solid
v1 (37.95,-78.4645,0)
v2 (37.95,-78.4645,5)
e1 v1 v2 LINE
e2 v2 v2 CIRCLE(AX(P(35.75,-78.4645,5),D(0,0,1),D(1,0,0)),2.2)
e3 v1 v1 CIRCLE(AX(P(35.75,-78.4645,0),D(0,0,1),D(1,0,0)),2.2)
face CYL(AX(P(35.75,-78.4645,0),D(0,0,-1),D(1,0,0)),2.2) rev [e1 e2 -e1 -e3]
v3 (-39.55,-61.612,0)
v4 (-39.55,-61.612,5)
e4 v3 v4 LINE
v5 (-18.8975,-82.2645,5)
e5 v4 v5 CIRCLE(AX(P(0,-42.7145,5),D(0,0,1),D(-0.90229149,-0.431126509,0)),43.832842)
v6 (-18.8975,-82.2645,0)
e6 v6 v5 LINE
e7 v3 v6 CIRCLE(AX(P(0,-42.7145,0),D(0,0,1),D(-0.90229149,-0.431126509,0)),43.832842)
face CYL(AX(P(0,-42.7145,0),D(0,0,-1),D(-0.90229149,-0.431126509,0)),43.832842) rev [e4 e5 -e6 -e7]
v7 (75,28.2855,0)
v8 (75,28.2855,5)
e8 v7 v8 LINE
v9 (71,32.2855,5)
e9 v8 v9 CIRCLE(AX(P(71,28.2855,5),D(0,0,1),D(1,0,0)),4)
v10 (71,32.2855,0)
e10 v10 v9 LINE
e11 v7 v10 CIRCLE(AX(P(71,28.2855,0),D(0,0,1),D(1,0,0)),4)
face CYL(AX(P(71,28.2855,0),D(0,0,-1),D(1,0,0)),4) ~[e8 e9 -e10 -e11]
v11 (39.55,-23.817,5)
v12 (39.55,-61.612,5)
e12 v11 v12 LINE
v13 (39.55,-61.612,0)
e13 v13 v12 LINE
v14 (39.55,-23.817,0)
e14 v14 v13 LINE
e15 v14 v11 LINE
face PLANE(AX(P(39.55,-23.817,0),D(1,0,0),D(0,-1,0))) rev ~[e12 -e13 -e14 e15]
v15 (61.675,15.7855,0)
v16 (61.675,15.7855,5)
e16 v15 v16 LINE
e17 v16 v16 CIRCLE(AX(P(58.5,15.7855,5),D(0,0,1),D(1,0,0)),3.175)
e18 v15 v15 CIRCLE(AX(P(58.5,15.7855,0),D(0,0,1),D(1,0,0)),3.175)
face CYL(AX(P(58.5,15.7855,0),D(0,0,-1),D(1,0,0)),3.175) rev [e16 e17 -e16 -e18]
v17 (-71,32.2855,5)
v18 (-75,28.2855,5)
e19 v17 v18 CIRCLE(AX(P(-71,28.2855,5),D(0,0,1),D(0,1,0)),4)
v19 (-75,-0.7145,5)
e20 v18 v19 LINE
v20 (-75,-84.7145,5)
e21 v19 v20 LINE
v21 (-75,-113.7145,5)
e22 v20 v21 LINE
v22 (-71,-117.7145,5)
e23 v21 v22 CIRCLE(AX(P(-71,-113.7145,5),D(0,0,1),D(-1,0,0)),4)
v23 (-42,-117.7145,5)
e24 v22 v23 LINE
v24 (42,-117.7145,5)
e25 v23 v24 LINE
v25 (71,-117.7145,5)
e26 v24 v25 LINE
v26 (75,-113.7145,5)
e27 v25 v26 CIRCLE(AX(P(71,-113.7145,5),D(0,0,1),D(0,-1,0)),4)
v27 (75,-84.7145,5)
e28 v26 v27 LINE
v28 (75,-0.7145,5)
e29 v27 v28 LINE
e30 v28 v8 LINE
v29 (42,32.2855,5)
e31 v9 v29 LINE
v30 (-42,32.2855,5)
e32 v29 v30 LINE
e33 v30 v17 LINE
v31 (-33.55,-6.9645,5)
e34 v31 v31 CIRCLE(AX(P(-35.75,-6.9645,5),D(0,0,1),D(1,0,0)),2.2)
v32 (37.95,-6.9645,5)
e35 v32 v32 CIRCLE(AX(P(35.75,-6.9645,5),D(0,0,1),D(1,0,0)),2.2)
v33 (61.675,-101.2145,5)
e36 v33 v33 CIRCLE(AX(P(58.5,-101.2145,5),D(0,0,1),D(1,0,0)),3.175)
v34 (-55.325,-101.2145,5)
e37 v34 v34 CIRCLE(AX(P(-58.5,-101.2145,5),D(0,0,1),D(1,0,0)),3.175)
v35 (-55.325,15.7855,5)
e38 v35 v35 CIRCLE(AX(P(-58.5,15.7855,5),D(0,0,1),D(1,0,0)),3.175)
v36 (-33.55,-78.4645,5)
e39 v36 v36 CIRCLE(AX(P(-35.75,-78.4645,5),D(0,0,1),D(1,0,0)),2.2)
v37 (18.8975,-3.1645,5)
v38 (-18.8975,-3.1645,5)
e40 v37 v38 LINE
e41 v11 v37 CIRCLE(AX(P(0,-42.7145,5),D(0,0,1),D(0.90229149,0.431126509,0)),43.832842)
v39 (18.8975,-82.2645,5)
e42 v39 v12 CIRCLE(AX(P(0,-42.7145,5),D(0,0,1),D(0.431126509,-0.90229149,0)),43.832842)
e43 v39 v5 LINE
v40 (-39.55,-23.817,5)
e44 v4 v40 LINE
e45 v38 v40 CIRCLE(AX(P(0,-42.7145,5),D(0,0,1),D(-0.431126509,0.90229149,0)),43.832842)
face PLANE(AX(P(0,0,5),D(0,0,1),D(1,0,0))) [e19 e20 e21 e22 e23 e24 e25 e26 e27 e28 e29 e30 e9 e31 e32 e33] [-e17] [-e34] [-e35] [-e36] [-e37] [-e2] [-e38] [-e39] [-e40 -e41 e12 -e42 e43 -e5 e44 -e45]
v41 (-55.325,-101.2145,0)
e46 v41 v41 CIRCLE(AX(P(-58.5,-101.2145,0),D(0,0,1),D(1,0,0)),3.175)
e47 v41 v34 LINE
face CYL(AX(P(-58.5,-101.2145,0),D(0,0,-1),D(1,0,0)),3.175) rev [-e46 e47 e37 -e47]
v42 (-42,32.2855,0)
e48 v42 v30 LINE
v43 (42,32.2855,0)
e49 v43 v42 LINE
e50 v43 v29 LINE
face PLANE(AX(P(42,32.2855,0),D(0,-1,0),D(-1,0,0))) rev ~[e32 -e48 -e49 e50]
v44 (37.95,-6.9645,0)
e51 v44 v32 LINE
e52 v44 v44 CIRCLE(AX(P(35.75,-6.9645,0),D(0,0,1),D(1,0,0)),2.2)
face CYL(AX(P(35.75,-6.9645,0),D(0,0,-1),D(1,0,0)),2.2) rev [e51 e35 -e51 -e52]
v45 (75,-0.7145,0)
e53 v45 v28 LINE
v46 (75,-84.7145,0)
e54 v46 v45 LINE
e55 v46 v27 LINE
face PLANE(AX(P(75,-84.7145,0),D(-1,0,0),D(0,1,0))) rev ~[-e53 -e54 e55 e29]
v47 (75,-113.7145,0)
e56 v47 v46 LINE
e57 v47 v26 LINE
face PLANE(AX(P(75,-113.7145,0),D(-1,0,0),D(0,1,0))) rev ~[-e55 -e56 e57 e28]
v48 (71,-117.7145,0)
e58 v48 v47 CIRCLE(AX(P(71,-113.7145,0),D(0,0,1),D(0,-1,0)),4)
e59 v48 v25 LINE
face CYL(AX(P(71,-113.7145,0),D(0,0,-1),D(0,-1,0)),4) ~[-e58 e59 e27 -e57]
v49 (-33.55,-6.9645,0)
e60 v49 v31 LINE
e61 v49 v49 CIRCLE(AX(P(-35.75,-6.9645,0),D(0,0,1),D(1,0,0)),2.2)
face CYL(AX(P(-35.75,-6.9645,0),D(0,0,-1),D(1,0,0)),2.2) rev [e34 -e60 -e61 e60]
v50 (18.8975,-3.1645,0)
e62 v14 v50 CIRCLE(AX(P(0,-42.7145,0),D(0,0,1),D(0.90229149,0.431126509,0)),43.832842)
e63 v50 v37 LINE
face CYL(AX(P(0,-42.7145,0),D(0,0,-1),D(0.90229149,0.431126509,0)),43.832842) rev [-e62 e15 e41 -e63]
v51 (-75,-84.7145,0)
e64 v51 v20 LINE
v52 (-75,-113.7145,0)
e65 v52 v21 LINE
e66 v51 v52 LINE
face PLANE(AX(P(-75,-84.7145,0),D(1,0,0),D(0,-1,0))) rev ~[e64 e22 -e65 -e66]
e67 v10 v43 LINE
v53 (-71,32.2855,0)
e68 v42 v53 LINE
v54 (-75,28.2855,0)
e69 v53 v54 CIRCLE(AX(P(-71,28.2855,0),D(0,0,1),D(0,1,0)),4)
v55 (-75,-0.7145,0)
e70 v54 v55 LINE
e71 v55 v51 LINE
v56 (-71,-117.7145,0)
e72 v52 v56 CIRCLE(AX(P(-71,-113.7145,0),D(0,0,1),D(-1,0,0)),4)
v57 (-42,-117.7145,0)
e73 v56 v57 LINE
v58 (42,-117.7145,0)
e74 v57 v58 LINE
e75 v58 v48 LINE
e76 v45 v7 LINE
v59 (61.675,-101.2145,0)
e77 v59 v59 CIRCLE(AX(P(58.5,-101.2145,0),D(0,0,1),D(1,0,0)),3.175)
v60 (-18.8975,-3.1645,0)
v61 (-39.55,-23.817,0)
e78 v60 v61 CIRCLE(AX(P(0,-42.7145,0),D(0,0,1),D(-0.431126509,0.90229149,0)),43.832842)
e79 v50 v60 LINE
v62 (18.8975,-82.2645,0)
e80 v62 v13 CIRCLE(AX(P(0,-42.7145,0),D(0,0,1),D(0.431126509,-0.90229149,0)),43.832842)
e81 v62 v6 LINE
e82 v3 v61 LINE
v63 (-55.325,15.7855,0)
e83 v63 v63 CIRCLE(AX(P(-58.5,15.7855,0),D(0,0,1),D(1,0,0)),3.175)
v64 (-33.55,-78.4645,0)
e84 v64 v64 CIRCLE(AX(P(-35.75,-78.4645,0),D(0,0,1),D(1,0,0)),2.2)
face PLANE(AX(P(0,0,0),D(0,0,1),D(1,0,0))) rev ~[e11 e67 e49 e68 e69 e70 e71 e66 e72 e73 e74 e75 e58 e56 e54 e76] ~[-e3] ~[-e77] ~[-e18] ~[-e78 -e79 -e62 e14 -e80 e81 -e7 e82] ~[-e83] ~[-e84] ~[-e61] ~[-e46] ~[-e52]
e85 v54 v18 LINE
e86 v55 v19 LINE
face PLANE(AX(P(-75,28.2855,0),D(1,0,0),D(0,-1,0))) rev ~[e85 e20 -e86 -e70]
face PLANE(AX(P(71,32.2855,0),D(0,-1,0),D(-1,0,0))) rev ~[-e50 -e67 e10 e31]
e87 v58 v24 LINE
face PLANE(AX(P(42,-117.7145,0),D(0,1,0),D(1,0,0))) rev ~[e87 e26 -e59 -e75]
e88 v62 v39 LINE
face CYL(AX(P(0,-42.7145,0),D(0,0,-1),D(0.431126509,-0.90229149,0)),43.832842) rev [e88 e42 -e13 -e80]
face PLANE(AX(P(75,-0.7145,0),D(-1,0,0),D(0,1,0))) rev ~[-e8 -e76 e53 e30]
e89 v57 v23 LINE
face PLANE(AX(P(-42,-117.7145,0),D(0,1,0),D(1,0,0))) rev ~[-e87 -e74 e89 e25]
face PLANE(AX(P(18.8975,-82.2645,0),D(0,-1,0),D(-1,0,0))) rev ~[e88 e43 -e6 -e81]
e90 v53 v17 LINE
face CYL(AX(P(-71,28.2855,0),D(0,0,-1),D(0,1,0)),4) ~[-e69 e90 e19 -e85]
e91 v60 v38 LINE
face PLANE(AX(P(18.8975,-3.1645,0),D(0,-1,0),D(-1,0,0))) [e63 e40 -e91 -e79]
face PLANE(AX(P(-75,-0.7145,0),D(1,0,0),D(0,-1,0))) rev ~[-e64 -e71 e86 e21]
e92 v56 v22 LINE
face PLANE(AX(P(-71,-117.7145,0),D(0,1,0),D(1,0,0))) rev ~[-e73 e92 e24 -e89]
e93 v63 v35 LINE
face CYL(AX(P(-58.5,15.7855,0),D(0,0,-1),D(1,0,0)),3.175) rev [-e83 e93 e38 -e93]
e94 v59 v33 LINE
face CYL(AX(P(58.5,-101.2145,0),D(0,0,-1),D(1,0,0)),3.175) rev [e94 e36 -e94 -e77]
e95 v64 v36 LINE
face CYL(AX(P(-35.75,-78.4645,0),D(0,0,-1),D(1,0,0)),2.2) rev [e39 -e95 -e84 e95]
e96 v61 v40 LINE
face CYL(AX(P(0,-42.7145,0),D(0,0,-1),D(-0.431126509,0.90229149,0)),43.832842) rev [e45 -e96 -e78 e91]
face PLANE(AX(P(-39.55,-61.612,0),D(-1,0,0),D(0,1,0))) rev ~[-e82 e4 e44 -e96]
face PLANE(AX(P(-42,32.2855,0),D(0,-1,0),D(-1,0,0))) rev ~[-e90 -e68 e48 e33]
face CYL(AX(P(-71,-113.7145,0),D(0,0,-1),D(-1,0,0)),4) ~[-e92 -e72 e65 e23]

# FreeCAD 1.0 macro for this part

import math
import FreeCAD as App
import Part
import Sketcher

V = App.Vector
Q = App.Units.Quantity

doc = App.newDocument("Part")
body = doc.addObject("PartDesign::Body", "Body")

sketch1 = body.newObject("Sketcher::SketchObject", "Sketch")
sketch1.AttachmentSupport = (doc.getObject("XY_Plane"), [""])
sketch1.MapMode = "FlatFace"
sketch1.addGeometry([
    Part.ArcOfCircle(Part.Circle(V(71, 28.3, 0), V(0, 0, 1), 4), math.radians(0), math.radians(90)),
    Part.LineSegment(V(71, 32.3, 0), V(-71, 32.3, 0)),
    Part.ArcOfCircle(Part.Circle(V(-71, 28.3, 0), V(0, 0, 1), 4), math.radians(90), math.radians(180)),
    Part.LineSegment(V(-75, 28.3, 0), V(-75, -113.7, 0)),
    Part.ArcOfCircle(Part.Circle(V(-71, -113.7, 0), V(0, 0, 1), 4), math.radians(180), math.radians(270)),
    Part.LineSegment(V(-71, -117.7, 0), V(71, -117.7, 0)),
    Part.ArcOfCircle(Part.Circle(V(71, -113.7, 0), V(0, 0, 1), 4), math.radians(-90), math.radians(0)),
    Part.LineSegment(V(75, -113.7, 0), V(75, 28.3, 0)),
    Part.Circle(V(-58.5, -101.2, 0), V(0, 0, 1), 3.2),
    Part.Circle(V(-35.8, -78.5, 0), V(0, 0, 1), 2.2),
    Part.Circle(V(58.5, -101.2, 0), V(0, 0, 1), 3.2),
    Part.Circle(V(35.8, -78.5, 0), V(0, 0, 1), 2.2),
    Part.Circle(V(-35.8, -7, 0), V(0, 0, 1), 2.2),
    Part.Circle(V(-58.5, 15.8, 0), V(0, 0, 1), 3.2),
    Part.ArcOfCircle(Part.Circle(V(0, -42.7, 0), V(0, 0, 1), 43.8), math.radians(26), math.radians(64)),
    Part.LineSegment(V(39.5, -23.8, 0), V(39.5, -61.6, 0)),
    Part.ArcOfCircle(Part.Circle(V(0, -42.7, 0), V(0, 0, 1), 43.8), math.radians(-64), math.radians(-26)),
    Part.LineSegment(V(18.9, -82.3, 0), V(-18.9, -82.3, 0)),
    Part.ArcOfCircle(Part.Circle(V(0, -42.7, 0), V(0, 0, 1), 43.8), math.radians(-154), math.radians(-116)),
    Part.LineSegment(V(-39.5, -61.6, 0), V(-39.5, -23.8, 0)),
    Part.ArcOfCircle(Part.Circle(V(0, -42.7, 0), V(0, 0, 1), 43.8), math.radians(116), math.radians(154)),
    Part.LineSegment(V(-18.9, -3.2, 0), V(18.9, -3.2, 0)),
    Part.Circle(V(35.8, -7, 0), V(0, 0, 1), 2.2),
    Part.Circle(V(58.5, 15.8, 0), V(0, 0, 1), 3.2),
], False)
sketch1.addConstraint([
    Sketcher.Constraint("Tangent", 0, 2, 1, 1),
    Sketcher.Constraint("Tangent", 1, 2, 2, 1),
    Sketcher.Constraint("Tangent", 2, 2, 3, 1),
    Sketcher.Constraint("Tangent", 3, 2, 4, 1),
    Sketcher.Constraint("Tangent", 4, 2, 5, 1),
    Sketcher.Constraint("Tangent", 5, 2, 6, 1),
    Sketcher.Constraint("Tangent", 6, 2, 7, 1),
    Sketcher.Constraint("Tangent", 7, 2, 0, 1),
    Sketcher.Constraint("Coincident", 14, 1, 15, 1),
    Sketcher.Constraint("Coincident", 15, 2, 16, 2),
    Sketcher.Constraint("Coincident", 16, 1, 17, 1),
    Sketcher.Constraint("Coincident", 17, 2, 18, 2),
    Sketcher.Constraint("Coincident", 18, 1, 19, 1),
    Sketcher.Constraint("Coincident", 19, 2, 20, 2),
    Sketcher.Constraint("Coincident", 20, 1, 21, 1),
    Sketcher.Constraint("Coincident", 21, 2, 14, 2),
    Sketcher.Constraint("Horizontal", 1),
    Sketcher.Constraint("Vertical", 3),
    Sketcher.Constraint("Horizontal", 5),
    Sketcher.Constraint("Vertical", 7),
    Sketcher.Constraint("Vertical", 15),
    Sketcher.Constraint("Horizontal", 17),
    Sketcher.Constraint("Vertical", 19),
    Sketcher.Constraint("Horizontal", 21),
    Sketcher.Constraint("Coincident", 16, 3, 14, 3),
    Sketcher.Constraint("Coincident", 18, 3, 14, 3),
    Sketcher.Constraint("Coincident", 20, 3, 14, 3),
    Sketcher.Constraint("Equal", 0, 2),
    Sketcher.Constraint("Equal", 2, 4),
    Sketcher.Constraint("Equal", 4, 6),
    Sketcher.Constraint("Equal", 8, 10),
    Sketcher.Constraint("Equal", 9, 11),
    Sketcher.Constraint("Equal", 11, 12),
    Sketcher.Constraint("Equal", 10, 13),
    Sketcher.Constraint("Equal", 14, 16),
    Sketcher.Constraint("Equal", 16, 18),
    Sketcher.Constraint("Equal", 18, 20),
    Sketcher.Constraint("Equal", 12, 22),
    Sketcher.Constraint("Equal", 13, 23),
    Sketcher.Constraint("Symmetric", 8, 3, 10, 3, -2),
    Sketcher.Constraint("Symmetric", 9, 3, 11, 3, -2),
    Sketcher.Constraint("Symmetric", 12, 3, 22, 3, -2),
    Sketcher.Constraint("Symmetric", 13, 3, 23, 3, -2),
    Sketcher.Constraint("Symmetric", 15, 2, 18, 1, -2),
    Sketcher.Constraint("Vertical", 9, 3, 12, 3),
    Sketcher.Constraint("Vertical", 8, 3, 13, 3),
    Sketcher.Constraint("Vertical", 17, 2, 20, 1),
    Sketcher.Constraint("Equal", 5, 3),
    Sketcher.Constraint("Equal", 21, 15),
    Sketcher.Constraint("Radius", 0, Q("4 mm")),
    Sketcher.Constraint("Diameter", 8, Q("6.35 mm")),
    Sketcher.Constraint("Diameter", 9, Q("4.4 mm")),
    Sketcher.Constraint("DistanceX", 1, 2, 1, 1, Q("142 mm")),
    Sketcher.Constraint("DistanceX", -1, 1, 0, 3, Q("71 mm")),
    Sketcher.Constraint("DistanceX", 8, 3, 10, 3, Q("117 mm")),
    Sketcher.Constraint("DistanceY", 8, 3, 13, 3, Q("117 mm")),
    Sketcher.Constraint("DistanceY", 14, 3, 0, 2, Q("75 mm")),
    Sketcher.Constraint("Radius", 14, Q("43.8328 mm")),
    Sketcher.Constraint("DistanceY", 4, 3, 8, 3, Q("12.5 mm")),
    Sketcher.Constraint("DistanceX", 9, 3, 11, 3, Q("71.5 mm")),
    Sketcher.Constraint("DistanceY", 9, 3, 12, 3, Q("71.5 mm")),
    Sketcher.Constraint("DistanceX", 22, 3, 14, 1, Q("3.8 mm")),
    Sketcher.Constraint("DistanceY", 16, 1, 11, 3, Q("3.8 mm")),
    Sketcher.Constraint("DistanceY", 14, 1, -1, 1, Q("23.817 mm")),
])
pad1 = body.newObject("PartDesign::Pad", "Pad")
pad1.Profile = sketch1
pad1.Length = 5

doc.recompute()
